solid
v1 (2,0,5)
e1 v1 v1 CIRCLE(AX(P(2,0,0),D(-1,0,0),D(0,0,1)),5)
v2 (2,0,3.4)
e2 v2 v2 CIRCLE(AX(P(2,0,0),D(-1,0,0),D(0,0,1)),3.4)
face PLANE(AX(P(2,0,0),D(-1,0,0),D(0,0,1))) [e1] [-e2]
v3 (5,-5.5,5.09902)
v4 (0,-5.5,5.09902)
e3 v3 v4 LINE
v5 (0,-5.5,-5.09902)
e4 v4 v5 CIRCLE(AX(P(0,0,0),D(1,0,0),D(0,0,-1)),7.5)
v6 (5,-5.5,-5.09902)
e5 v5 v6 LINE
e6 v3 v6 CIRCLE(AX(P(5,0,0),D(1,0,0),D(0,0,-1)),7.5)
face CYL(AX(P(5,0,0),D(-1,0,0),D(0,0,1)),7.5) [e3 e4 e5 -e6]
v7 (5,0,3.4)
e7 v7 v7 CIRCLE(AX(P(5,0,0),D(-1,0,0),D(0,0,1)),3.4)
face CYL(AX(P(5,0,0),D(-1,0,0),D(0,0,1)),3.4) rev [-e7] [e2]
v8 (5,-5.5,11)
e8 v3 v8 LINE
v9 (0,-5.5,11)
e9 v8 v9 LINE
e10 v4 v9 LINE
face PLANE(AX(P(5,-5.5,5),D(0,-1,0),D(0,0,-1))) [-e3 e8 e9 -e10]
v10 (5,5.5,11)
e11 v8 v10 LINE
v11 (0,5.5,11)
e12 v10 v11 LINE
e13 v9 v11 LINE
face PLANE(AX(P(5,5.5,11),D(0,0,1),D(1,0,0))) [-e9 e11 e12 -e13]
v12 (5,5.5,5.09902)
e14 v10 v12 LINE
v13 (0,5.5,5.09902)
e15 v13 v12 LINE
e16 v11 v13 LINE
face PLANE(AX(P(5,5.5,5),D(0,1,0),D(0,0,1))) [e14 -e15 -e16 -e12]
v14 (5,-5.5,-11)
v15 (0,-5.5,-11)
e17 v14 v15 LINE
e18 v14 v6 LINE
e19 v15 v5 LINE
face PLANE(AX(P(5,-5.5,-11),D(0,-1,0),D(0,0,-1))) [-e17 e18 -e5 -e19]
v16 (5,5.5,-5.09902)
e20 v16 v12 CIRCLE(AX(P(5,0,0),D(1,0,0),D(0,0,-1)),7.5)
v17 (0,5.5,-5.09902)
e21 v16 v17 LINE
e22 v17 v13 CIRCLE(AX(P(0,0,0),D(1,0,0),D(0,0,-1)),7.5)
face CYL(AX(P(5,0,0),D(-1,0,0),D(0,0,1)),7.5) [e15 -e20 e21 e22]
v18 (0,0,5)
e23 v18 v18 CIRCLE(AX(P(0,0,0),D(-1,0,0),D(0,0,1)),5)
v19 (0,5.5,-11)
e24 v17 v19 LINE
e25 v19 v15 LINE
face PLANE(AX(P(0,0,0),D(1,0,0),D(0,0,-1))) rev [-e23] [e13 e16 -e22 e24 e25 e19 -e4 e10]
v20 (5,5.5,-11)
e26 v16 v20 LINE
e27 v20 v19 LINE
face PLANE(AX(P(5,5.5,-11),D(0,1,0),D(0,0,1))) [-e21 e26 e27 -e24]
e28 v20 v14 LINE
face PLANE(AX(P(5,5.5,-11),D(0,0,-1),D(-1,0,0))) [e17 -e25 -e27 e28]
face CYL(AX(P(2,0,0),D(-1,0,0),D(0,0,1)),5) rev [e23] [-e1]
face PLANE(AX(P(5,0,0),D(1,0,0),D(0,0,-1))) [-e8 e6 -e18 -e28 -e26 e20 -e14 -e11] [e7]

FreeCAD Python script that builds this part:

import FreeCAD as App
import Part
import Sketcher
from FreeCAD import Vector


def add_polygon(sketch, points):
    """Adds a closed chain of lines whose ends are joined by coincident constraints."""
    first, n = sketch.GeometryCount, len(points)
    for a, b in zip(points, points[1:] + points[:1]):
        sketch.addGeometry(Part.LineSegment(App.Vector(*a, 0), App.Vector(*b, 0)), False)
    for i in range(n):
        sketch.addConstraint(Sketcher.Constraint("Coincident", first + i, 2, first + (i + 1) % n, 1))

doc = App.newDocument("Part")
params = doc.addObject("Spreadsheet::Sheet", "Params")
for row, (alias, value) in enumerate([
    ("sketch1_diameter", "15 mm"),
    ("pad1_length", "5 mm"),
    ("sketch2_diameter", "10 mm"),
    ("pocket1_length", "2 mm"),
    ("sketch3_diameter", "6.8 mm"),
    ("sketch4_width", "11 mm"),
    ("sketch4_height", "6 mm"),
    ("pad2_length", "5 mm"),
], start=1):
    params.set(f"A{row}", alias)
    params.set(f"B{row}", "=" + value)
    params.setAlias(f"B{row}", alias)

body = doc.addObject("PartDesign::Body", "Body")

# Sketch on YZ plane
sketch1 = doc.addObject("Sketcher::SketchObject", "Sketch")
body.addObject(sketch1)
sketch1.AttachmentSupport = (doc.YZ_Plane, [""])
sketch1.MapMode = "FlatFace"
sketch1.addGeometry(Part.Circle(Vector(0, 0, 0), Vector(0, 0, 1), 8), False)
sketch1.addConstraint([
    Sketcher.Constraint("Coincident", 0, 3, -1, 1),
    Sketcher.Constraint("Diameter", 0, 15.0),
])
sketch1.setExpression("Constraints[1]", "Params.sketch1_diameter")
pad1 = doc.addObject("PartDesign::Pad", "Pad")
body.addObject(pad1)
pad1.Profile = sketch1
pad1.setExpression("Length", "Params.pad1_length")

# Sketch on YZ plane
sketch2 = doc.addObject("Sketcher::SketchObject", "Sketch001")
body.addObject(sketch2)
sketch2.AttachmentSupport = (doc.YZ_Plane, [""])
sketch2.MapMode = "FlatFace"
sketch2.addGeometry(Part.Circle(Vector(0, 0, 0), Vector(0, 0, 1), 5), False)
sketch2.addConstraint([
    Sketcher.Constraint("Coincident", 0, 3, -1, 1),
    Sketcher.Constraint("Diameter", 0, 10.0),
])
sketch2.setExpression("Constraints[1]", "Params.sketch2_diameter")
pocket1 = doc.addObject("PartDesign::Pocket", "Pocket")
body.addObject(pocket1)
pocket1.Profile = sketch2
pocket1.setExpression("Length", "Params.pocket1_length")
pocket1.Reversed = True

# Sketch on YZ plane
sketch3 = doc.addObject("Sketcher::SketchObject", "Sketch002")
body.addObject(sketch3)
sketch3.AttachmentSupport = (doc.YZ_Plane, [""])
sketch3.MapMode = "FlatFace"
sketch3.AttachmentOffset = App.Placement(Vector(0, 0, 2), App.Rotation())
sketch3.addGeometry(Part.Circle(Vector(0, 0, 0), Vector(0, 0, 1), 3.4), False)
sketch3.addConstraint([
    Sketcher.Constraint("Coincident", 0, 3, -1, 1),
    Sketcher.Constraint("Diameter", 0, 6.8),
])
sketch3.setExpression("Constraints[1]", "Params.sketch3_diameter")
pocket2 = doc.addObject("PartDesign::Pocket", "Pocket001")
body.addObject(pocket2)
pocket2.Profile = sketch3
pocket2.Type = "ThroughAll"
pocket2.Reversed = True

# Sketch on YZ plane
sketch4 = doc.addObject("Sketcher::SketchObject", "Sketch003")
body.addObject(sketch4)
sketch4.AttachmentSupport = (doc.YZ_Plane, [""])
sketch4.MapMode = "FlatFace"
add_polygon(sketch4, [(6, 5), (-6, 5), (-6, 11), (6, 11)])  # lines 0-3
add_polygon(sketch4, [(6, -11), (-6, -11), (-6, -5), (6, -5)])  # lines 4-7
sketch4.addConstraint([
    Sketcher.Constraint("Horizontal", 0),
    Sketcher.Constraint("Vertical", 1),
    Sketcher.Constraint("Horizontal", 2),
    Sketcher.Constraint("Vertical", 3),
    Sketcher.Constraint("Horizontal", 4),
    Sketcher.Constraint("Vertical", 5),
    Sketcher.Constraint("Horizontal", 6),
    Sketcher.Constraint("Vertical", 7),
    Sketcher.Constraint("Symmetric", 2, 2, 4, 2, -1, 1),
    Sketcher.Constraint("Symmetric", 0, 2, 6, 2, -1, 1),
    Sketcher.Constraint("Vertical", 1, 2, 4, 2),
    Sketcher.Constraint("DistanceX", 0, 2, 0, 1, 11.0),
    Sketcher.Constraint("DistanceY", 1, 1, 1, 2, 6.0),
    Sketcher.Constraint("DistanceY", -1, 1, 0, 2, 5.0),
])
sketch4.setExpression("Constraints[19]", "Params.sketch4_width")
sketch4.setExpression("Constraints[20]", "Params.sketch4_height")
pad2 = doc.addObject("PartDesign::Pad", "Pad001")
body.addObject(pad2)
pad2.Profile = sketch4
pad2.setExpression("Length", "Params.pad2_length")

doc.recompute()
